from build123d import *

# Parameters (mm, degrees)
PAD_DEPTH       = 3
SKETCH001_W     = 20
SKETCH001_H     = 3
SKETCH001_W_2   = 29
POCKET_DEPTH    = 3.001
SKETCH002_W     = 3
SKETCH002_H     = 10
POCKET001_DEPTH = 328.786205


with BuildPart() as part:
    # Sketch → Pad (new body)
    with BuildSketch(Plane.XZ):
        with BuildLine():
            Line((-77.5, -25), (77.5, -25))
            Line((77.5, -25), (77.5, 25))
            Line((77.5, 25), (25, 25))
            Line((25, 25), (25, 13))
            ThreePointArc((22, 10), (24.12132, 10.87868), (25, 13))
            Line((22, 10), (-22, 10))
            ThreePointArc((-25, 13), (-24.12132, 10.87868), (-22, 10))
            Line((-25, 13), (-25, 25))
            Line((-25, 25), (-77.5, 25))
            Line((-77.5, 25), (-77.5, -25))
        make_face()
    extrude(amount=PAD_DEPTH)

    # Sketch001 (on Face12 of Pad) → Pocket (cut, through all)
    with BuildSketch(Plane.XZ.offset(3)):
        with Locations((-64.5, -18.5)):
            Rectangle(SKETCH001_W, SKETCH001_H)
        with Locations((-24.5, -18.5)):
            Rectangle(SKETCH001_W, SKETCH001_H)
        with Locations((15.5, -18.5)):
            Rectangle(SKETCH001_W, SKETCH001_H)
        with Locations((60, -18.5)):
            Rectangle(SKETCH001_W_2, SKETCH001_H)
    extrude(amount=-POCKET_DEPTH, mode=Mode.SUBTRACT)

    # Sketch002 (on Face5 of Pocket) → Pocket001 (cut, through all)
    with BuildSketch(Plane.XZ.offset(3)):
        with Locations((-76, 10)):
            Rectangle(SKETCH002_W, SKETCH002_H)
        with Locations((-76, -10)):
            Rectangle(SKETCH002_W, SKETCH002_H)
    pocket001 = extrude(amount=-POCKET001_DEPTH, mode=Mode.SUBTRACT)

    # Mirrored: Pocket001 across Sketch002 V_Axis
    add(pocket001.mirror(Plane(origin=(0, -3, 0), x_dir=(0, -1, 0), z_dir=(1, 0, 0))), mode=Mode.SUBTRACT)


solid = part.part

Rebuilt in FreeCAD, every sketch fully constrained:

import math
import FreeCAD as App
import Part
import Sketcher


def add_polygon(sketch, points):
    """Adds a closed chain of lines whose ends are joined by coincident constraints."""
    first, n = sketch.GeometryCount, len(points)
    for a, b in zip(points, points[1:] + points[:1]):
        sketch.addGeometry(Part.LineSegment(App.Vector(*a, 0), App.Vector(*b, 0)), False)
    for i in range(n):
        sketch.addConstraint(Sketcher.Constraint("Coincident", first + i, 2, first + (i + 1) % n, 1))

doc = App.newDocument("Part")
params = doc.addObject("Spreadsheet::Sheet", "Params")
for row, (alias, value) in enumerate([
    ("sketch1_radius", "3.000001 mm"),
    ("sketch1_width", "155 mm"),
    ("sketch1_width2", "44 mm"),
    ("sketch1_height", "50 mm"),
    ("sketch1_height2", "12 mm"),
    ("pad1_length", "3 mm"),
    ("sketch2_width", "20 mm"),
    ("sketch2_width2", "29 mm"),
    ("sketch2_height", "3 mm"),
    ("sketch3_width", "3 mm"),
    ("sketch3_height", "10 mm"),
], start=1):
    params.set(f"A{row}", alias)
    params.set(f"B{row}", "=" + value)
    params.setAlias(f"B{row}", alias)

body = doc.addObject("PartDesign::Body", "Body")

# Sketch on XZ plane
sketch1 = doc.addObject("Sketcher::SketchObject", "Sketch")
body.addObject(sketch1)
sketch1.AttachmentSupport = (doc.XZ_Plane, [""])
sketch1.MapMode = "FlatFace"
sketch1.addGeometry([
    Part.LineSegment(App.Vector(-77.5, -25, 0), App.Vector(77.5, -25, 0)),  # 0
    Part.LineSegment(App.Vector(77.5, -25, 0), App.Vector(77.5, 25, 0)),  # 1
    Part.LineSegment(App.Vector(77.5, 25, 0), App.Vector(25, 25, 0)),  # 2
    Part.LineSegment(App.Vector(25, 25, 0), App.Vector(25, 13, 0)),  # 3
    Part.ArcOfCircle(Part.Circle(App.Vector(22, 13, 0), App.Vector(0, 0, 1), 3), math.radians(-90), math.radians(0)),  # 4
    Part.LineSegment(App.Vector(22, 10, 0), App.Vector(-22, 10, 0)),  # 5
    Part.ArcOfCircle(Part.Circle(App.Vector(-22, 13, 0), App.Vector(0, 0, 1), 3), math.radians(-180), math.radians(-90)),  # 6
    Part.LineSegment(App.Vector(-25, 13, 0), App.Vector(-25, 25, 0)),  # 7
    Part.LineSegment(App.Vector(-25, 25, 0), App.Vector(-77.5, 25, 0)),  # 8
    Part.LineSegment(App.Vector(-77.5, 25, 0), App.Vector(-77.5, -25, 0)),  # 9
], False)
sketch1.addConstraint([
    Sketcher.Constraint("Coincident", 0, 2, 1, 1),
    Sketcher.Constraint("Coincident", 1, 2, 2, 1),
    Sketcher.Constraint("Coincident", 2, 2, 3, 1),
    Sketcher.Constraint("Tangent", 3, 2, 4, 2),
    Sketcher.Constraint("Tangent", 4, 1, 5, 1),
    Sketcher.Constraint("Tangent", 5, 2, 6, 2),
    Sketcher.Constraint("Tangent", 6, 1, 7, 1),
    Sketcher.Constraint("Coincident", 7, 2, 8, 1),
    Sketcher.Constraint("Coincident", 8, 2, 9, 1),
    Sketcher.Constraint("Coincident", 9, 2, 0, 1),
    Sketcher.Constraint("Horizontal", 0),
    Sketcher.Constraint("Vertical", 1),
    Sketcher.Constraint("Horizontal", 2),
    Sketcher.Constraint("Vertical", 3),
    Sketcher.Constraint("Horizontal", 5),
    Sketcher.Constraint("Vertical", 7),
    Sketcher.Constraint("Horizontal", 8),
    Sketcher.Constraint("Vertical", 9),
    Sketcher.Constraint("Equal", 4, 6),
    Sketcher.Constraint("Symmetric", 0, 2, 8, 2, -1, 1),
    Sketcher.Constraint("Symmetric", 2, 2, 7, 2, -2),
    Sketcher.Constraint("Radius", 4, 3.000001),
    Sketcher.Constraint("DistanceX", 0, 1, 0, 2, 155.0),
    Sketcher.Constraint("DistanceX", 5, 2, 5, 1, 44.0),
    Sketcher.Constraint("DistanceY", 1, 1, 1, 2, 50.0),
    Sketcher.Constraint("DistanceY", 3, 2, 3, 1, 12.0),
])
sketch1.setExpression("Constraints[21]", "Params.sketch1_radius")
sketch1.setExpression("Constraints[22]", "Params.sketch1_width")
sketch1.setExpression("Constraints[23]", "Params.sketch1_width2")
sketch1.setExpression("Constraints[24]", "Params.sketch1_height")
sketch1.setExpression("Constraints[25]", "Params.sketch1_height2")
pad1 = doc.addObject("PartDesign::Pad", "Pad")
body.addObject(pad1)
pad1.Profile = sketch1
pad1.setExpression("Length", "Params.pad1_length")

# Sketch on XZ plane
sketch2 = doc.addObject("Sketcher::SketchObject", "Sketch001")
body.addObject(sketch2)
sketch2.AttachmentSupport = (doc.XZ_Plane, [""])
sketch2.MapMode = "FlatFace"
sketch2.AttachmentOffset = App.Placement(App.Vector(0, 0, 3), App.Rotation())
add_polygon(sketch2, [(-74.5, -17), (-74.5, -20), (-54.5, -20), (-54.5, -17)])  # lines 0-3
add_polygon(sketch2, [(-34.5, -17), (-34.5, -20), (-14.5, -20), (-14.5, -17)])  # lines 4-7
add_polygon(sketch2, [(5.5, -17), (5.5, -20), (25.5, -20), (25.5, -17)])  # lines 8-11
add_polygon(sketch2, [(45.5, -17), (45.5, -20), (74.5, -20), (74.5, -17)])  # lines 12-15
sketch2.addConstraint([
    Sketcher.Constraint("Vertical", 0),
    Sketcher.Constraint("Horizontal", 1),
    Sketcher.Constraint("Vertical", 2),
    Sketcher.Constraint("Horizontal", 3),
    Sketcher.Constraint("Vertical", 4),
    Sketcher.Constraint("Horizontal", 5),
    Sketcher.Constraint("Vertical", 6),
    Sketcher.Constraint("Horizontal", 7),
    Sketcher.Constraint("Vertical", 8),
    Sketcher.Constraint("Horizontal", 9),
    Sketcher.Constraint("Vertical", 10),
    Sketcher.Constraint("Horizontal", 11),
    Sketcher.Constraint("Vertical", 12),
    Sketcher.Constraint("Horizontal", 13),
    Sketcher.Constraint("Vertical", 14),
    Sketcher.Constraint("Horizontal", 15),
    Sketcher.Constraint("Symmetric", 0, 2, 13, 2, -2),
    Sketcher.Constraint("Horizontal", 1, 2, 4, 2),
    Sketcher.Constraint("Horizontal", 3, 2, 6, 2),
    Sketcher.Constraint("Horizontal", 5, 2, 8, 2),
    Sketcher.Constraint("Horizontal", 7, 2, 10, 2),
    Sketcher.Constraint("Horizontal", 11, 2, 14, 2),
    Sketcher.Constraint("Equal", 3, 5),
    Sketcher.Constraint("Equal", 7, 9),
    Sketcher.Constraint("DistanceX", 1, 1, 1, 2, 20.0),
    Sketcher.Constraint("DistanceX", 13, 1, 13, 2, 29.0),
    Sketcher.Constraint("DistanceY", 0, 2, 0, 1, 3.0),
    Sketcher.Constraint("DistanceY", 0, 2, -1, 1, 20.0),
    Sketcher.Constraint("DistanceX", 1, 2, 4, 2, 20.0),
    Sketcher.Constraint("DistanceX", 5, 2, 8, 2, 20.0),
    Sketcher.Constraint("DistanceX", 9, 2, 12, 2, 20.0),
])
sketch2.setExpression("Constraints[40]", "Params.sketch2_width")
sketch2.setExpression("Constraints[41]", "Params.sketch2_width2")
sketch2.setExpression("Constraints[42]", "Params.sketch2_height")
pocket1 = doc.addObject("PartDesign::Pocket", "Pocket")
body.addObject(pocket1)
pocket1.Profile = sketch2
pocket1.Type = "ThroughAll"

# Sketch on XZ plane
sketch3 = doc.addObject("Sketcher::SketchObject", "Sketch002")
body.addObject(sketch3)
sketch3.AttachmentSupport = (doc.XZ_Plane, [""])
sketch3.MapMode = "FlatFace"
sketch3.AttachmentOffset = App.Placement(App.Vector(0, 0, 3), App.Rotation())
add_polygon(sketch3, [(-77.5, 15), (-77.5, 5), (-74.5, 5), (-74.5, 15)])  # lines 0-3
add_polygon(sketch3, [(-77.5, -5), (-77.5, -15), (-74.5, -15), (-74.5, -5)])  # lines 4-7
sketch3.addConstraint([
    Sketcher.Constraint("Vertical", 0),
    Sketcher.Constraint("Horizontal", 1),
    Sketcher.Constraint("Vertical", 2),
    Sketcher.Constraint("Horizontal", 3),
    Sketcher.Constraint("Vertical", 4),
    Sketcher.Constraint("Horizontal", 5),
    Sketcher.Constraint("Vertical", 6),
    Sketcher.Constraint("Horizontal", 7),
    Sketcher.Constraint("Symmetric", 3, 2, 4, 2, -1),
    Sketcher.Constraint("Symmetric", 1, 2, 6, 2, -1),
    Sketcher.Constraint("DistanceX", 1, 1, 1, 2, 3.0),
    Sketcher.Constraint("DistanceY", 0, 2, 0, 1, 10.0),
    Sketcher.Constraint("DistanceY", -1, 1, 0, 2, 5.0),
    Sketcher.Constraint("DistanceX", 0, 2, -1, 1, 77.5),
])
sketch3.setExpression("Constraints[18]", "Params.sketch3_width")
sketch3.setExpression("Constraints[19]", "Params.sketch3_height")
pocket2 = doc.addObject("PartDesign::Pocket", "Pocket001")
body.addObject(pocket2)
pocket2.Profile = sketch3
pocket2.Type = "ThroughAll"
doc.recompute()

mirrored = doc.addObject("PartDesign::Mirrored", "Mirrored")
body.addObject(mirrored)
mirrored.Originals = [pocket2]
mirrored.MirrorPlane = (doc.YZ_Plane, [""])
body.Tip = mirrored

doc.recompute()
